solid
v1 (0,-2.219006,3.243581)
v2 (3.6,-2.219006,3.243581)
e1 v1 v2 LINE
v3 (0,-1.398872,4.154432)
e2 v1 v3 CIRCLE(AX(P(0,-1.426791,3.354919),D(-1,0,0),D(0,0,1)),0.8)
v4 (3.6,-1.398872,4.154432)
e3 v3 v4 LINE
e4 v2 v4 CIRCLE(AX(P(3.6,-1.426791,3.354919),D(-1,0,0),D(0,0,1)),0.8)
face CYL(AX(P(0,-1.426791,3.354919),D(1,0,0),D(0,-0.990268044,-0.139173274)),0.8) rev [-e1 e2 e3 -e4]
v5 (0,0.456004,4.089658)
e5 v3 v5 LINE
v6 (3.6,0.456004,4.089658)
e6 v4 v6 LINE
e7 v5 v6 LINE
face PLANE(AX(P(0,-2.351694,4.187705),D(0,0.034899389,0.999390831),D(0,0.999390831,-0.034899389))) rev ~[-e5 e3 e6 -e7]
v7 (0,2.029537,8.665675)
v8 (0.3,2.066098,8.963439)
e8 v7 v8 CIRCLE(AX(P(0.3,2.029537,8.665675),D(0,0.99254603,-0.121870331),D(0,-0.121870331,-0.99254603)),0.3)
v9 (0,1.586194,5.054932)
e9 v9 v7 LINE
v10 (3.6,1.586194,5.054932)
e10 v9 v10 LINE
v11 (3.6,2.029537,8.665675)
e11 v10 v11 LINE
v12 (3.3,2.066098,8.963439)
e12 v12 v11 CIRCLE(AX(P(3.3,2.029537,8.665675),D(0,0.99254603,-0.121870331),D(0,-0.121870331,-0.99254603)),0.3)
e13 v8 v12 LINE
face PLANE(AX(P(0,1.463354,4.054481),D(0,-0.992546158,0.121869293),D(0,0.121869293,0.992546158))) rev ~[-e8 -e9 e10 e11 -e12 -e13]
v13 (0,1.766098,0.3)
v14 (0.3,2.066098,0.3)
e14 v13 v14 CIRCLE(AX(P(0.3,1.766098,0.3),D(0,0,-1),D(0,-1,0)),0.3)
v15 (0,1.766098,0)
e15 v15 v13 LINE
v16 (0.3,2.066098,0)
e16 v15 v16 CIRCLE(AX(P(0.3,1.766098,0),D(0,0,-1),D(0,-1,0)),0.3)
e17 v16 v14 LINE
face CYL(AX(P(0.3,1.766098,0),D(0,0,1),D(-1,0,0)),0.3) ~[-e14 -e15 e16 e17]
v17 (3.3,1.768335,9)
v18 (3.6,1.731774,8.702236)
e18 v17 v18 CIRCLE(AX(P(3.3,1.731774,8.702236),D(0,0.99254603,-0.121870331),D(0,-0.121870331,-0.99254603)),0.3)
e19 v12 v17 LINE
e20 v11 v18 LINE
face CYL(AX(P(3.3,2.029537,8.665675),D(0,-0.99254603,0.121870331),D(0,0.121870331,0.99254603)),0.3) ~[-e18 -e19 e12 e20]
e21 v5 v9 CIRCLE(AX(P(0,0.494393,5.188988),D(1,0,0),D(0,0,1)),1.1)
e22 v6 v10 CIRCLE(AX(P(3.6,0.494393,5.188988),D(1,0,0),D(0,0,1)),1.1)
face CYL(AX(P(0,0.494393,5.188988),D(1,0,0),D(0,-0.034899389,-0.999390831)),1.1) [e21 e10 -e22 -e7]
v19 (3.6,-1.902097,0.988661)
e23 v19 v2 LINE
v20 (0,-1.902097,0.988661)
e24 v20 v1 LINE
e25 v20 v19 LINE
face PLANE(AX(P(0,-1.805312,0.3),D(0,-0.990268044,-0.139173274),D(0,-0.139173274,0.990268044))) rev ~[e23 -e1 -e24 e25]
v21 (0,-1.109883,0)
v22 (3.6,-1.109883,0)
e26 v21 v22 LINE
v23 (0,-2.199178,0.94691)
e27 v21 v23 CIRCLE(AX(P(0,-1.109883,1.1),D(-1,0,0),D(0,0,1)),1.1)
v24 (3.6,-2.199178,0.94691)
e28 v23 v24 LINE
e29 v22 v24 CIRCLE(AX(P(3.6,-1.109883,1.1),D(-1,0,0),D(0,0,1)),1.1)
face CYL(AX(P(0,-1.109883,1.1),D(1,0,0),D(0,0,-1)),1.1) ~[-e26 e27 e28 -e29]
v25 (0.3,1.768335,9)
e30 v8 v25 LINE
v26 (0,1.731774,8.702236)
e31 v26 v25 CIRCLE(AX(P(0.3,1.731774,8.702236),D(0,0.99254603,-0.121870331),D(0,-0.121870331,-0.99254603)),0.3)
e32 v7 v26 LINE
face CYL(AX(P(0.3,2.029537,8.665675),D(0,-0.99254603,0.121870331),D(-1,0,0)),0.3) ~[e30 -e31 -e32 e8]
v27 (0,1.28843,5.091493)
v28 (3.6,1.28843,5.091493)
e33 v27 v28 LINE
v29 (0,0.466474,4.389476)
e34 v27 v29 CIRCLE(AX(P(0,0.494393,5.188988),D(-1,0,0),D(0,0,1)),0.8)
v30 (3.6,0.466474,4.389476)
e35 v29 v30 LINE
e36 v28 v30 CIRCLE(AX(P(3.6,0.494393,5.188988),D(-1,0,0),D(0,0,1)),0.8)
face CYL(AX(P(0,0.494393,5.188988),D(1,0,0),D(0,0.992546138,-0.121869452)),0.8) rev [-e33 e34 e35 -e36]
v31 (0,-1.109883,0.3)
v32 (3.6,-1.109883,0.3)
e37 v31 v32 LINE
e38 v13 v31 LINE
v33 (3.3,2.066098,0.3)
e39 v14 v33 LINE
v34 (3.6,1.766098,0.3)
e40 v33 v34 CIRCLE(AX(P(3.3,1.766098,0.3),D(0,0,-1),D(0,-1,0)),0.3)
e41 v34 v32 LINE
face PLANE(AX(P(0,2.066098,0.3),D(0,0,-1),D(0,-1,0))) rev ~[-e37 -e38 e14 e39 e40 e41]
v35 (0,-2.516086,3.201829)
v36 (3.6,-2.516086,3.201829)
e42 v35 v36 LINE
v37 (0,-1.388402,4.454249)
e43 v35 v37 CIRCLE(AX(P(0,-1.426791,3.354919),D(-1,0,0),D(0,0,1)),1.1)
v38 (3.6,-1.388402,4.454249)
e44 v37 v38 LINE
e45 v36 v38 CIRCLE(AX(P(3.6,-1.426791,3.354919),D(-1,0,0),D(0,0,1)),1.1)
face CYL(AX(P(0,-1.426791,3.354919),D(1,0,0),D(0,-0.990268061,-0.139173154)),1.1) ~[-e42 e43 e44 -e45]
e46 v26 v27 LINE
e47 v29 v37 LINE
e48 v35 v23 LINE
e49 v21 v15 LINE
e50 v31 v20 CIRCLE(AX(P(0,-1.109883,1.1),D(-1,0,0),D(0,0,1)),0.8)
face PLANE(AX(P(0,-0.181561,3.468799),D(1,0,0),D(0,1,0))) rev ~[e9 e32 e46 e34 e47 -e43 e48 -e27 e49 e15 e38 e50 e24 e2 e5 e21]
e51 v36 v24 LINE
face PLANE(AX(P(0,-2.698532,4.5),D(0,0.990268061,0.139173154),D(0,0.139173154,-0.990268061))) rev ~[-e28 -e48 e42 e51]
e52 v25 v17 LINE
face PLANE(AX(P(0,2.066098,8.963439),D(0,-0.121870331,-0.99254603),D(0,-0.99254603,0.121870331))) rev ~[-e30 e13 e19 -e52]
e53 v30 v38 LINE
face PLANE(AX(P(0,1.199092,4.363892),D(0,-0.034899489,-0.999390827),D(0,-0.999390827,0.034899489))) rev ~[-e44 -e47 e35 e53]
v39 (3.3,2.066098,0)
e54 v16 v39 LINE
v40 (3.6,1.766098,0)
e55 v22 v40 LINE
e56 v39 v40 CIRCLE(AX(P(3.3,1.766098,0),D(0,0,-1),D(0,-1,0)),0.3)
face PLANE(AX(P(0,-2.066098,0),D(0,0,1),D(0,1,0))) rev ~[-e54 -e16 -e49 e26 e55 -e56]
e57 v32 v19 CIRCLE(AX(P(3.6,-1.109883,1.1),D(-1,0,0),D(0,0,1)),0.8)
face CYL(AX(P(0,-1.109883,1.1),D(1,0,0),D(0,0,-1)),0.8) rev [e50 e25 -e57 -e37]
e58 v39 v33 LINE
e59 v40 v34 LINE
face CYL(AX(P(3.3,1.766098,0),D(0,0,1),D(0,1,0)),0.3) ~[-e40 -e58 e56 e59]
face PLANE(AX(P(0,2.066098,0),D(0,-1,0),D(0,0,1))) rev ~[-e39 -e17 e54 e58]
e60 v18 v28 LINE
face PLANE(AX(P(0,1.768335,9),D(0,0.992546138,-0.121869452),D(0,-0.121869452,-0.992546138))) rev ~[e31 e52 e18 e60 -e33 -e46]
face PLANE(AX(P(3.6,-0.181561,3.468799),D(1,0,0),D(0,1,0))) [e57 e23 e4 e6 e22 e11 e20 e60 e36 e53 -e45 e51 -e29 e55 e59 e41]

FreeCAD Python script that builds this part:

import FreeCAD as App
import Part
import Sketcher
Q = App.Units.Quantity


def edges_at(feature, points):
    """Names of the edges that pass closest to the given points."""
    edges = feature.Shape.Edges
    near = lambda p: min(range(len(edges)), key=lambda i: edges[i].distToShape(Part.Vertex(*p))[0])
    return sorted({f"Edge{near(p) + 1}" for p in points})


def add_polygon(sketch, points):
    """Adds a closed chain of lines whose ends are joined by coincident constraints."""
    first, n = sketch.GeometryCount, len(points)
    for a, b in zip(points, points[1:] + points[:1]):
        sketch.addGeometry(Part.LineSegment(App.Vector(*a, 0), App.Vector(*b, 0)), False)
    for i in range(n):
        sketch.addConstraint(Sketcher.Constraint("Coincident", first + i, 2, first + (i + 1) % n, 1))

doc = App.newDocument("Part")
body = doc.addObject("PartDesign::Body", "Body")

# Sketch on YZ plane
sketch1 = doc.addObject("Sketcher::SketchObject", "Sketch")
body.addObject(sketch1)
sketch1.AttachmentSupport = (doc.YZ_Plane, [""])
sketch1.MapMode = "FlatFace"
add_polygon(sketch1, [(-2.07, 0), (2.07, 0), (2.07, 0.3), (-1.81, 0.3), (-2.35, 4.19), (1.46, 4.05), (2.07, 8.96), (1.77, 9), (1.2, 4.36), (-2.7, 4.5)])  # lines 0-9
sketch1.addConstraint([
    Sketcher.Constraint("Horizontal", 0),
    Sketcher.Constraint("Vertical", 1),
    Sketcher.Constraint("Horizontal", 2),
    Sketcher.Constraint("Symmetric", 0, 2, 9, 2, -1, 1),
    Sketcher.Constraint("Perpendicular", 5, 6),
    Sketcher.Constraint("Perpendicular", 6, 7),
    Sketcher.Constraint("Parallel", 4, 8),
    Sketcher.Constraint("Parallel", 3, 9),
    Sketcher.Constraint("Vertical", 1, 2, 5, 2),
    Sketcher.Constraint("Angle", 3, Q("98.00001 deg")),
    Sketcher.Constraint("Angle", 4, Q("-1.999994 deg")),
    Sketcher.Constraint("Angle", 5, Q("83.000003 deg")),
    Sketcher.Constraint("DistanceY", 1, 1, 1, 2, 0.3),
    Sketcher.Constraint("DistanceY", -1, 1, 6, 2, 9.0),
    Sketcher.Constraint("Distance", 6, 0.299999),
    Sketcher.Constraint("Distance", 8, 3.9),
    Sketcher.Constraint("DistanceY", -1, 1, 8, 2, 4.5),
    Sketcher.Constraint("DistanceX", 2, 2, 2, 1, 3.87141),
    Sketcher.Constraint("Distance", 3, 3.925912),
])
pad1 = doc.addObject("PartDesign::Pad", "Pad")
body.addObject(pad1)
pad1.Profile = sketch1
pad1.Length = 3.6
doc.recompute()

fillet = doc.addObject("PartDesign::Fillet", "Fillet")
body.addObject(fillet)
fillet.Base = (pad1, edges_at(pad1, [(1.8, -2.352, 4.188), (1.8, -1.805, 0.3), (1.8, 1.199, 4.364)]))
fillet.Radius = 0.8
doc.recompute()

fillet2 = doc.addObject("PartDesign::Fillet", "Fillet001")
body.addObject(fillet2)
fillet2.Base = (fillet, edges_at(fillet, [(1.8, -2.699, 4.5), (1.8, 1.463, 4.054), (1.8, -2.066, 0)]))
fillet2.Radius = 1.1
doc.recompute()

fillet3 = doc.addObject("PartDesign::Fillet", "Fillet002")
body.addObject(fillet3)
fillet3.Base = (fillet2, edges_at(fillet2, [
    (3.6, 1.917, 8.982),
    (0, 1.917, 8.982),
    (3.6, 2.066, 0.15),
    (0, 2.066, 0.15),
]))
fillet3.Radius = 0.3

doc.recompute()
